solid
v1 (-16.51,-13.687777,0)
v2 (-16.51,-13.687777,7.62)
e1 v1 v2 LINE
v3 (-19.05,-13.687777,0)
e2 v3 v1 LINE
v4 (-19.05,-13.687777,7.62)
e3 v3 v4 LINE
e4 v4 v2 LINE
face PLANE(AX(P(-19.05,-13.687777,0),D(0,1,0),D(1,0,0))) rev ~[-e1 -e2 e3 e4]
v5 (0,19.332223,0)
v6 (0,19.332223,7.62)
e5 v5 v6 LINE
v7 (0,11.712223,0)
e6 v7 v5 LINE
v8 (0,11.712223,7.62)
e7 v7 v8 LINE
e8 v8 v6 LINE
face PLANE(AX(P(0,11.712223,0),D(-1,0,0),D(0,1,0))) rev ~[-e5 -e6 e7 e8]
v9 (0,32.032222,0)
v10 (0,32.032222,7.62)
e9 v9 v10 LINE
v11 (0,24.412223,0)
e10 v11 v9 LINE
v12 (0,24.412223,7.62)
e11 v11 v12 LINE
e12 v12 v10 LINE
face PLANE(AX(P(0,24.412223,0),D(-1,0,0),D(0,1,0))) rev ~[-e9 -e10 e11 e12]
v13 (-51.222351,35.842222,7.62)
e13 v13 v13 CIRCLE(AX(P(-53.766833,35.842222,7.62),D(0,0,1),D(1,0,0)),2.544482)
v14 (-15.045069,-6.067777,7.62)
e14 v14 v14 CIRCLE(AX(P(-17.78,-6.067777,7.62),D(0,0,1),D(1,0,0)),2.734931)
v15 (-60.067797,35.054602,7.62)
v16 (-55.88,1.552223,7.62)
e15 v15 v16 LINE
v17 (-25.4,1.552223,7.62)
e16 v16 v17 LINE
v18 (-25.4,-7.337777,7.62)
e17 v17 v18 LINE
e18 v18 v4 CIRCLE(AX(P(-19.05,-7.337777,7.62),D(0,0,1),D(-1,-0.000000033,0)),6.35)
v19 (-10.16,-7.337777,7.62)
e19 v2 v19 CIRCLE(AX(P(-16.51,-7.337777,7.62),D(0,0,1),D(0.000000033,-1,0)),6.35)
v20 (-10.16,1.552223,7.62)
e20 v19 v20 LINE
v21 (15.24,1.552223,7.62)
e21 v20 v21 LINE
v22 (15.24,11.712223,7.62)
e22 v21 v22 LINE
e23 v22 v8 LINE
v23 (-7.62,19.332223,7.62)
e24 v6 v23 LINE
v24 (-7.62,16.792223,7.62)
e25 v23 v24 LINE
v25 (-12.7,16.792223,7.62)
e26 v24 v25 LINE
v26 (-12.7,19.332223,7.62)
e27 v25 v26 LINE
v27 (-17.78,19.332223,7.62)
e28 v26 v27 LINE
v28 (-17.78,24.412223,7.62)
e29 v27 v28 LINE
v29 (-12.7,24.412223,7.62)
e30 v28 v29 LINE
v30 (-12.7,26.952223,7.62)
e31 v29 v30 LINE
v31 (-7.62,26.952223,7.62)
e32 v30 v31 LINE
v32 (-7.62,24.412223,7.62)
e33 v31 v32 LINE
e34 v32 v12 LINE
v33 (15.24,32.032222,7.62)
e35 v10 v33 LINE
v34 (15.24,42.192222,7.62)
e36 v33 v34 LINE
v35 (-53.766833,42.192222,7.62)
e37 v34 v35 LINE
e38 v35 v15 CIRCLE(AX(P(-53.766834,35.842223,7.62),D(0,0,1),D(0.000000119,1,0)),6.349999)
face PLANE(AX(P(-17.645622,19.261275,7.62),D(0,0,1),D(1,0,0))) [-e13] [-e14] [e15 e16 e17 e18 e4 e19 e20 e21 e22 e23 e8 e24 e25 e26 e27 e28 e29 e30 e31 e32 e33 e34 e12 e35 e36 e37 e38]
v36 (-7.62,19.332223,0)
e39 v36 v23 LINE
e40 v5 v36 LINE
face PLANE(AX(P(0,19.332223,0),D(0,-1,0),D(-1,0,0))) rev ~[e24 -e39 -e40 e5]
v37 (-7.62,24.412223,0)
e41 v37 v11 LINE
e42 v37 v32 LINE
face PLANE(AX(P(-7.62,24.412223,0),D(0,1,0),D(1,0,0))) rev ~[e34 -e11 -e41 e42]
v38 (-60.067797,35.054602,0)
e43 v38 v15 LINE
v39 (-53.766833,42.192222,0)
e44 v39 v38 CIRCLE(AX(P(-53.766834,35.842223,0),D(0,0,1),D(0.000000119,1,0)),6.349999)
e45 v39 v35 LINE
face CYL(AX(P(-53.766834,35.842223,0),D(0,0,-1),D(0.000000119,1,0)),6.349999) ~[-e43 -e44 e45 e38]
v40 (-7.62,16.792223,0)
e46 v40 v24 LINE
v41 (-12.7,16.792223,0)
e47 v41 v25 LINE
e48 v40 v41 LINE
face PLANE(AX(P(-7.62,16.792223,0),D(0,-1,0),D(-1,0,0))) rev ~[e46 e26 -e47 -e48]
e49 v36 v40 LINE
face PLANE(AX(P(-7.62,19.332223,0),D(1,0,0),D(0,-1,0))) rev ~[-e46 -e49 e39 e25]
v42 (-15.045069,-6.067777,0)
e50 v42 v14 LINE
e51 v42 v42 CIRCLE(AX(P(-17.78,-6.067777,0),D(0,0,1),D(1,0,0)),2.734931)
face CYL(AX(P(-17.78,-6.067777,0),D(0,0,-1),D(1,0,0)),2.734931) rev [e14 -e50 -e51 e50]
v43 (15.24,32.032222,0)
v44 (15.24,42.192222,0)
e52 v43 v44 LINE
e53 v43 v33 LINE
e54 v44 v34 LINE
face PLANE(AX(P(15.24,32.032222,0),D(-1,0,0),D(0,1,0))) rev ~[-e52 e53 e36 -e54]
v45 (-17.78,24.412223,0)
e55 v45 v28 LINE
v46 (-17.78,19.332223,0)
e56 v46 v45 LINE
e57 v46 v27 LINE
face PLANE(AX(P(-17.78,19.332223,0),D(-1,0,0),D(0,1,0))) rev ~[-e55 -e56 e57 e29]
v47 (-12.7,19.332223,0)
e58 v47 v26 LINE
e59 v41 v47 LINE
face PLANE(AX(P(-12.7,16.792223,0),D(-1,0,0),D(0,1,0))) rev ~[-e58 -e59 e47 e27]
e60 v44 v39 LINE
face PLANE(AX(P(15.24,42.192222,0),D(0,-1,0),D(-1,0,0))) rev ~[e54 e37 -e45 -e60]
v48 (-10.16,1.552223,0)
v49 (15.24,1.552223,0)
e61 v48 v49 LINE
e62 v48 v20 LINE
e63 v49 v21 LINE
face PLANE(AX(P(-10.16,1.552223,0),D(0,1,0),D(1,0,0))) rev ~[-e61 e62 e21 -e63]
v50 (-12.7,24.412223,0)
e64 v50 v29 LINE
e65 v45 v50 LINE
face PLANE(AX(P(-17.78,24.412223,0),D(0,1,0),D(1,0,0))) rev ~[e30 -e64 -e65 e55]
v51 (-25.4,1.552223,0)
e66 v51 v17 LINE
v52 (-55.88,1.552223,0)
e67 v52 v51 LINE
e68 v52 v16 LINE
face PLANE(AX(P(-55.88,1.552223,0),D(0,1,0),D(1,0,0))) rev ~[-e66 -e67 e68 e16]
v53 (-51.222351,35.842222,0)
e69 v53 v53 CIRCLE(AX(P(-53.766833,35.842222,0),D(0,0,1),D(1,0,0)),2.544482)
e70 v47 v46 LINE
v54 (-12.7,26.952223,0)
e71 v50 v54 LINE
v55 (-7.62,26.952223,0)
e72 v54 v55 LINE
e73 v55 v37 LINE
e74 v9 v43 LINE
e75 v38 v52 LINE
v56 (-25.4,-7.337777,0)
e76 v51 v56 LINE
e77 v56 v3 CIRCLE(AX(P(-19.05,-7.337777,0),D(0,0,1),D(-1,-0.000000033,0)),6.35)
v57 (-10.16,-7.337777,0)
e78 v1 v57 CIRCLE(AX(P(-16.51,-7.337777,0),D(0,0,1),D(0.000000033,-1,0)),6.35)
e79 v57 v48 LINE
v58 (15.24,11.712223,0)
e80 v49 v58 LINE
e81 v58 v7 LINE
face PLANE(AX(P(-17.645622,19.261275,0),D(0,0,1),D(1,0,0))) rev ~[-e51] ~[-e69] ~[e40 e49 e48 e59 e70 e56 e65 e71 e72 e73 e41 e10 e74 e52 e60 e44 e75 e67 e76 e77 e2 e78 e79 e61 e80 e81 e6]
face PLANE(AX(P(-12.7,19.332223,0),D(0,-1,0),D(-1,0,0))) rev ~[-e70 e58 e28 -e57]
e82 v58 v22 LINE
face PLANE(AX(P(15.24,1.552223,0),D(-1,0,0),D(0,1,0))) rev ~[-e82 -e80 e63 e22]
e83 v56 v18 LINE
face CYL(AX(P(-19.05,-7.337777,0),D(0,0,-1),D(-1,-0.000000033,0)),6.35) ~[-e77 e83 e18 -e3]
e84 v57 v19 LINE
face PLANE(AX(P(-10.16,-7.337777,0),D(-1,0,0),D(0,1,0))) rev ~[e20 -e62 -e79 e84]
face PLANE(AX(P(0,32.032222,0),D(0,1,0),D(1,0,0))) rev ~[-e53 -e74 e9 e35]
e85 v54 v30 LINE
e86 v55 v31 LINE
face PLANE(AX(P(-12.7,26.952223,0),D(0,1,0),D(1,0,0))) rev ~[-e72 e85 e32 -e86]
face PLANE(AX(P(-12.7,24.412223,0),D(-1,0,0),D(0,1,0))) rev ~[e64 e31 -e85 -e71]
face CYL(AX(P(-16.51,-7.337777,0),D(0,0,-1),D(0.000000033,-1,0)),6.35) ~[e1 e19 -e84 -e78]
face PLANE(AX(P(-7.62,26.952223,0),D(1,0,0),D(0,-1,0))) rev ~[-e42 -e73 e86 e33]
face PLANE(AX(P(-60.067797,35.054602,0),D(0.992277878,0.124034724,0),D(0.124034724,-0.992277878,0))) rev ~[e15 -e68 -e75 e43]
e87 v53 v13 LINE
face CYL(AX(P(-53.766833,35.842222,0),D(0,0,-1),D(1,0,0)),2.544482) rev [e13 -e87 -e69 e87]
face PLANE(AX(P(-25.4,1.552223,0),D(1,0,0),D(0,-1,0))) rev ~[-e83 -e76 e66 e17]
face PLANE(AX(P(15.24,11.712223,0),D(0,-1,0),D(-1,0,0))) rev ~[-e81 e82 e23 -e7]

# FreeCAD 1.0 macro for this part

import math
import FreeCAD as App
import Part
import Sketcher
from FreeCAD import Vector
Q = App.Units.Quantity

doc = App.newDocument("Part")
body = doc.addObject("PartDesign::Body", "Body")

sketch1 = body.newObject("Sketcher::SketchObject", "Sketch")
sketch1.AttachmentSupport = (doc.getObject("XY_Plane"), [""])
sketch1.MapMode = "FlatFace"
sketch1.addGeometry(Part.LineSegment(Vector(15.2, 42.2, 0), Vector(-53.8, 42.2, 0)), False)
sketch1.addGeometry(Part.ArcOfCircle(Part.Circle(Vector(-53.8, 35.8, 0), Vector(0, 0, 1), 6.3), math.radians(90), math.radians(187)), False)
sketch1.addGeometry(Part.LineSegment(Vector(-60.1, 35.1, 0), Vector(-55.9, 1.6, 0)), False)
sketch1.addGeometry(Part.LineSegment(Vector(-55.9, 1.6, 0), Vector(-25.4, 1.6, 0)), False)
sketch1.addGeometry(Part.LineSegment(Vector(-25.4, 1.6, 0), Vector(-25.4, -7.3, 0)), False)
sketch1.addGeometry(Part.ArcOfCircle(Part.Circle(Vector(-19, -7.3, 0), Vector(0, 0, 1), 6.4), math.radians(-180), math.radians(-90)), False)
sketch1.addGeometry(Part.LineSegment(Vector(-19.1, -13.7, 0), Vector(-16.5, -13.7, 0)), False)
sketch1.addGeometry(Part.ArcOfCircle(Part.Circle(Vector(-16.5, -7.3, 0), Vector(0, 0, 1), 6.4), math.radians(-90), math.radians(0)), False)
sketch1.addGeometry(Part.LineSegment(Vector(-10.2, -7.3, 0), Vector(-10.2, 1.6, 0)), False)
sketch1.addGeometry(Part.LineSegment(Vector(-10.2, 1.6, 0), Vector(15.2, 1.6, 0)), False)
sketch1.addGeometry(Part.LineSegment(Vector(15.2, 1.6, 0), Vector(15.2, 11.7, 0)), False)
sketch1.addGeometry(Part.LineSegment(Vector(15.2, 11.7, 0), Vector(0, 11.7, 0)), False)
sketch1.addGeometry(Part.LineSegment(Vector(0, 11.7, 0), Vector(0, 19.3, 0)), False)
sketch1.addGeometry(Part.LineSegment(Vector(0, 19.3, 0), Vector(-7.6, 19.3, 0)), False)
sketch1.addGeometry(Part.LineSegment(Vector(-7.6, 19.3, 0), Vector(-7.6, 16.8, 0)), False)
sketch1.addGeometry(Part.LineSegment(Vector(-7.6, 16.8, 0), Vector(-12.7, 16.8, 0)), False)
sketch1.addGeometry(Part.LineSegment(Vector(-12.7, 16.8, 0), Vector(-12.7, 19.3, 0)), False)
sketch1.addGeometry(Part.LineSegment(Vector(-12.7, 19.3, 0), Vector(-17.8, 19.3, 0)), False)
sketch1.addGeometry(Part.LineSegment(Vector(-17.8, 19.3, 0), Vector(-17.8, 24.4, 0)), False)
sketch1.addGeometry(Part.LineSegment(Vector(-17.8, 24.4, 0), Vector(-12.7, 24.4, 0)), False)
sketch1.addGeometry(Part.LineSegment(Vector(-12.7, 24.4, 0), Vector(-12.7, 27, 0)), False)
sketch1.addGeometry(Part.LineSegment(Vector(-12.7, 27, 0), Vector(-7.6, 27, 0)), False)
sketch1.addGeometry(Part.LineSegment(Vector(-7.6, 27, 0), Vector(-7.6, 24.4, 0)), False)
sketch1.addGeometry(Part.LineSegment(Vector(-7.6, 24.4, 0), Vector(0, 24.4, 0)), False)
sketch1.addGeometry(Part.LineSegment(Vector(0, 24.4, 0), Vector(0, 32, 0)), False)
sketch1.addGeometry(Part.LineSegment(Vector(0, 32, 0), Vector(15.2, 32, 0)), False)
sketch1.addGeometry(Part.LineSegment(Vector(15.2, 32, 0), Vector(15.2, 42.2, 0)), False)
sketch1.addGeometry(Part.Circle(Vector(-17.8, -6.1, 0), Vector(0, 0, 1), 2.7), False)
sketch1.addGeometry(Part.Circle(Vector(-53.8, 35.8, 0), Vector(0, 0, 1), 2.5), False)
sketch1.addConstraint(Sketcher.Constraint("Tangent", 0, 2, 1, 1))
sketch1.addConstraint(Sketcher.Constraint("Tangent", 1, 2, 2, 1))
sketch1.addConstraint(Sketcher.Constraint("Coincident", 2, 2, 3, 1))
sketch1.addConstraint(Sketcher.Constraint("Coincident", 3, 2, 4, 1))
sketch1.addConstraint(Sketcher.Constraint("Tangent", 4, 2, 5, 1))
sketch1.addConstraint(Sketcher.Constraint("Tangent", 5, 2, 6, 1))
sketch1.addConstraint(Sketcher.Constraint("Tangent", 6, 2, 7, 1))
sketch1.addConstraint(Sketcher.Constraint("Tangent", 7, 2, 8, 1))
sketch1.addConstraint(Sketcher.Constraint("Coincident", 8, 2, 9, 1))
sketch1.addConstraint(Sketcher.Constraint("Coincident", 9, 2, 10, 1))
sketch1.addConstraint(Sketcher.Constraint("Coincident", 10, 2, 11, 1))
sketch1.addConstraint(Sketcher.Constraint("Coincident", 11, 2, 12, 1))
sketch1.addConstraint(Sketcher.Constraint("Coincident", 12, 2, 13, 1))
sketch1.addConstraint(Sketcher.Constraint("Coincident", 13, 2, 14, 1))
sketch1.addConstraint(Sketcher.Constraint("Coincident", 14, 2, 15, 1))
sketch1.addConstraint(Sketcher.Constraint("Coincident", 15, 2, 16, 1))
sketch1.addConstraint(Sketcher.Constraint("Coincident", 16, 2, 17, 1))
sketch1.addConstraint(Sketcher.Constraint("Coincident", 17, 2, 18, 1))
sketch1.addConstraint(Sketcher.Constraint("Coincident", 18, 2, 19, 1))
sketch1.addConstraint(Sketcher.Constraint("Coincident", 19, 2, 20, 1))
sketch1.addConstraint(Sketcher.Constraint("Coincident", 20, 2, 21, 1))
sketch1.addConstraint(Sketcher.Constraint("Coincident", 21, 2, 22, 1))
sketch1.addConstraint(Sketcher.Constraint("Coincident", 22, 2, 23, 1))
sketch1.addConstraint(Sketcher.Constraint("Coincident", 23, 2, 24, 1))
sketch1.addConstraint(Sketcher.Constraint("Coincident", 24, 2, 25, 1))
sketch1.addConstraint(Sketcher.Constraint("Coincident", 25, 2, 26, 1))
sketch1.addConstraint(Sketcher.Constraint("Coincident", 26, 2, 0, 1))
sketch1.addConstraint(Sketcher.Constraint("Horizontal", 0))
sketch1.addConstraint(Sketcher.Constraint("Horizontal", 3))
sketch1.addConstraint(Sketcher.Constraint("Vertical", 4))
sketch1.addConstraint(Sketcher.Constraint("Horizontal", 6))
sketch1.addConstraint(Sketcher.Constraint("Vertical", 8))
sketch1.addConstraint(Sketcher.Constraint("Horizontal", 9))
sketch1.addConstraint(Sketcher.Constraint("Vertical", 10))
sketch1.addConstraint(Sketcher.Constraint("Horizontal", 11))
sketch1.addConstraint(Sketcher.Constraint("Vertical", 12))
sketch1.addConstraint(Sketcher.Constraint("Horizontal", 13))
sketch1.addConstraint(Sketcher.Constraint("Vertical", 14))
sketch1.addConstraint(Sketcher.Constraint("Horizontal", 15))
sketch1.addConstraint(Sketcher.Constraint("Vertical", 16))
sketch1.addConstraint(Sketcher.Constraint("Horizontal", 17))
sketch1.addConstraint(Sketcher.Constraint("Vertical", 18))
sketch1.addConstraint(Sketcher.Constraint("Horizontal", 19))
sketch1.addConstraint(Sketcher.Constraint("Vertical", 20))
sketch1.addConstraint(Sketcher.Constraint("Horizontal", 21))
sketch1.addConstraint(Sketcher.Constraint("Vertical", 22))
sketch1.addConstraint(Sketcher.Constraint("Horizontal", 23))
sketch1.addConstraint(Sketcher.Constraint("Vertical", 24))
sketch1.addConstraint(Sketcher.Constraint("Horizontal", 25))
sketch1.addConstraint(Sketcher.Constraint("Vertical", 26))
sketch1.addConstraint(Sketcher.Constraint("Coincident", 28, 3, 1, 3))
sketch1.addConstraint(Sketcher.Constraint("Equal", 1, 5))
sketch1.addConstraint(Sketcher.Constraint("Equal", 5, 7))
sketch1.addConstraint(Sketcher.Constraint("PointOnObject", 11, 2, -2))
sketch1.addConstraint(Sketcher.Constraint("PointOnObject", 23, 2, -2))
sketch1.addConstraint(Sketcher.Constraint("Horizontal", 3, 2, 8, 2))
sketch1.addConstraint(Sketcher.Constraint("Horizontal", 13, 2, 16, 2))
sketch1.addConstraint(Sketcher.Constraint("Horizontal", 19, 2, 22, 2))
sketch1.addConstraint(Sketcher.Constraint("Vertical", 27, 3, 17, 2))
sketch1.addConstraint(Sketcher.Constraint("Vertical", 16, 2, 19, 2))
sketch1.addConstraint(Sketcher.Constraint("Vertical", 14, 2, 21, 2))
sketch1.addConstraint(Sketcher.Constraint("Vertical", 10, 2, 25, 2))
sketch1.addConstraint(Sketcher.Constraint("Equal", 15, 17))
sketch1.addConstraint(Sketcher.Constraint("Equal", 23, 12))
sketch1.addConstraint(Sketcher.Constraint("Equal", 6, 14))
sketch1.addConstraint(Sketcher.Constraint("Equal", 21, 18))
sketch1.addConstraint(Sketcher.Constraint("Equal", 16, 20))
sketch1.addConstraint(Sketcher.Constraint("Equal", 12, 24))
sketch1.addConstraint(Sketcher.Constraint("Equal", 10, 26))
sketch1.addConstraint(Sketcher.Constraint("DistanceX", 9, 1, 9, 2, Q("1 in")))
sketch1.addConstraint(Sketcher.Constraint("Radius", 1, Q("0.25 in")))
sketch1.addConstraint(Sketcher.Constraint("DistanceX", 3, 1, 3, 2, Q("1.2 in")))
sketch1.addConstraint(Sketcher.Constraint("DistanceX", 6, 1, 6, 2, Q("0.1 in")))
sketch1.addConstraint(Sketcher.Constraint("DistanceX", 11, 2, 11, 1, Q("0.6 in")))
sketch1.addConstraint(Sketcher.Constraint("DistanceX", 13, 2, 13, 1, Q("0.3 in")))
sketch1.addConstraint(Sketcher.Constraint("DistanceX", 15, 2, 15, 1, Q("0.2 in")))
sketch1.addConstraint(Sketcher.Constraint("DistanceY", 10, 1, 10, 2, Q("0.4 in")))
sketch1.addConstraint(Sketcher.Constraint("DistanceY", 4, 2, 4, 1, Q("0.35 in")))
sketch1.addConstraint(Sketcher.Constraint("DistanceY", 27, 3, 0, 2, Q("1.9 in")))
sketch1.addConstraint(Sketcher.Constraint("Diameter", 27, 5.469862))
sketch1.addConstraint(Sketcher.Constraint("Diameter", 28, 5.088964))
sketch1.addConstraint(Sketcher.Constraint("Distance", 2, 33.763102))
sketch1.addConstraint(Sketcher.Constraint("DistanceY", -1, 1, 24, 2, 32.032222))
pad1 = body.newObject("PartDesign::Pad", "Pad")
pad1.Profile = sketch1
pad1.Length = Q("0.3 in")

doc.recompute()
